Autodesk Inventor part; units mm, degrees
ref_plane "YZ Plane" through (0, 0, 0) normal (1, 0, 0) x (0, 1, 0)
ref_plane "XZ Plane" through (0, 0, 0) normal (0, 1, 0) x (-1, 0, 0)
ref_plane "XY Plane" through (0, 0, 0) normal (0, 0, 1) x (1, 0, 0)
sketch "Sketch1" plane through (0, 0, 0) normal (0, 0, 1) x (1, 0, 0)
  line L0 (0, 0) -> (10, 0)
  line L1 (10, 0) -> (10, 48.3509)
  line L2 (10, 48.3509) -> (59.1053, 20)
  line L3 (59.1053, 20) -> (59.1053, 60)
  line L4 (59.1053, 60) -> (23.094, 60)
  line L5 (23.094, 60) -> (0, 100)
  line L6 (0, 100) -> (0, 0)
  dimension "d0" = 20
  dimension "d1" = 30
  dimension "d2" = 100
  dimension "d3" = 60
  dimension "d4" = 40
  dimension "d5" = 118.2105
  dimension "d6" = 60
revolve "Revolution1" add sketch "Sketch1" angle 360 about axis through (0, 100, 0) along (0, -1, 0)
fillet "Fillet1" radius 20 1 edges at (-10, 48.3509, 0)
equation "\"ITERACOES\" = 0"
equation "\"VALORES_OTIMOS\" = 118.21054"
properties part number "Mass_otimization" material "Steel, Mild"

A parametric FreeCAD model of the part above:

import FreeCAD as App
import Part
import Sketcher

V = App.Vector
Q = App.Units.Quantity


def edges_at(feature, points):
    """Names of the edges that pass closest to the given points."""
    edges = feature.Shape.Edges
    near = lambda p: min(range(len(edges)), key=lambda i: edges[i].distToShape(Part.Vertex(*p))[0])
    return sorted({f"Edge{near(p) + 1}" for p in points})


def add_polygon(sketch, points):
    """Adds a closed chain of lines whose ends are joined by coincident constraints."""
    first, n = sketch.GeometryCount, len(points)
    for a, b in zip(points, points[1:] + points[:1]):
        sketch.addGeometry(Part.LineSegment(App.Vector(*a, 0), App.Vector(*b, 0)), False)
    for i in range(n):
        sketch.addConstraint(Sketcher.Constraint("Coincident", first + i, 2, first + (i + 1) % n, 1))

doc = App.newDocument("Part")
body = doc.addObject("PartDesign::Body", "Body")

# Sketch on XY plane
sketch1 = body.newObject("Sketcher::SketchObject", "Sketch")
sketch1.AttachmentSupport = (doc.getObject("XY_Plane"), [""])
sketch1.MapMode = "FlatFace"
add_polygon(sketch1, [(0, 100), (0, 0), (10, 0), (10, 48), (59, 20), (59, 60), (23, 60)])  # lines 0-6
sketch1.addConstraint([
    Sketcher.Constraint("Vertical", 0),
    Sketcher.Constraint("Horizontal", 1),
    Sketcher.Constraint("Vertical", 2),
    Sketcher.Constraint("Vertical", 4),
    Sketcher.Constraint("Horizontal", 5),
    Sketcher.Constraint("Coincident", 0, 2, -1, 1),
    Sketcher.Constraint("Angle", 3, Q("-30 deg")),
    Sketcher.Constraint("DistanceY", 0, 2, 0, 1, Q("3.937 in")),
    Sketcher.Constraint("DistanceY", 4, 1, 4, 2, Q("1.5748 in")),
    Sketcher.Constraint("Angle", 6, Q("120 deg")),
    Sketcher.Constraint("DistanceY", -1, 1, 3, 2, Q("0.7874 in")),
    Sketcher.Constraint("DistanceX", 1, 1, 1, 2, Q("0.3937 in")),
    Sketcher.Constraint("DistanceX", 5, 2, 5, 1, 36.0113),
])
revolution = body.newObject("PartDesign::Revolution", "Revolution")
revolution.Profile = sketch1
revolution.ReferenceAxis = (sketch1, ["V_Axis"])
revolution.Angle = 360
doc.recompute()

fillet = body.newObject("PartDesign::Fillet", "Fillet")
fillet.Base = (revolution, edges_at(revolution, [(-10, 48.351, 0)]))
fillet.Radius = Q("0.7874016 in")

doc.recompute()
